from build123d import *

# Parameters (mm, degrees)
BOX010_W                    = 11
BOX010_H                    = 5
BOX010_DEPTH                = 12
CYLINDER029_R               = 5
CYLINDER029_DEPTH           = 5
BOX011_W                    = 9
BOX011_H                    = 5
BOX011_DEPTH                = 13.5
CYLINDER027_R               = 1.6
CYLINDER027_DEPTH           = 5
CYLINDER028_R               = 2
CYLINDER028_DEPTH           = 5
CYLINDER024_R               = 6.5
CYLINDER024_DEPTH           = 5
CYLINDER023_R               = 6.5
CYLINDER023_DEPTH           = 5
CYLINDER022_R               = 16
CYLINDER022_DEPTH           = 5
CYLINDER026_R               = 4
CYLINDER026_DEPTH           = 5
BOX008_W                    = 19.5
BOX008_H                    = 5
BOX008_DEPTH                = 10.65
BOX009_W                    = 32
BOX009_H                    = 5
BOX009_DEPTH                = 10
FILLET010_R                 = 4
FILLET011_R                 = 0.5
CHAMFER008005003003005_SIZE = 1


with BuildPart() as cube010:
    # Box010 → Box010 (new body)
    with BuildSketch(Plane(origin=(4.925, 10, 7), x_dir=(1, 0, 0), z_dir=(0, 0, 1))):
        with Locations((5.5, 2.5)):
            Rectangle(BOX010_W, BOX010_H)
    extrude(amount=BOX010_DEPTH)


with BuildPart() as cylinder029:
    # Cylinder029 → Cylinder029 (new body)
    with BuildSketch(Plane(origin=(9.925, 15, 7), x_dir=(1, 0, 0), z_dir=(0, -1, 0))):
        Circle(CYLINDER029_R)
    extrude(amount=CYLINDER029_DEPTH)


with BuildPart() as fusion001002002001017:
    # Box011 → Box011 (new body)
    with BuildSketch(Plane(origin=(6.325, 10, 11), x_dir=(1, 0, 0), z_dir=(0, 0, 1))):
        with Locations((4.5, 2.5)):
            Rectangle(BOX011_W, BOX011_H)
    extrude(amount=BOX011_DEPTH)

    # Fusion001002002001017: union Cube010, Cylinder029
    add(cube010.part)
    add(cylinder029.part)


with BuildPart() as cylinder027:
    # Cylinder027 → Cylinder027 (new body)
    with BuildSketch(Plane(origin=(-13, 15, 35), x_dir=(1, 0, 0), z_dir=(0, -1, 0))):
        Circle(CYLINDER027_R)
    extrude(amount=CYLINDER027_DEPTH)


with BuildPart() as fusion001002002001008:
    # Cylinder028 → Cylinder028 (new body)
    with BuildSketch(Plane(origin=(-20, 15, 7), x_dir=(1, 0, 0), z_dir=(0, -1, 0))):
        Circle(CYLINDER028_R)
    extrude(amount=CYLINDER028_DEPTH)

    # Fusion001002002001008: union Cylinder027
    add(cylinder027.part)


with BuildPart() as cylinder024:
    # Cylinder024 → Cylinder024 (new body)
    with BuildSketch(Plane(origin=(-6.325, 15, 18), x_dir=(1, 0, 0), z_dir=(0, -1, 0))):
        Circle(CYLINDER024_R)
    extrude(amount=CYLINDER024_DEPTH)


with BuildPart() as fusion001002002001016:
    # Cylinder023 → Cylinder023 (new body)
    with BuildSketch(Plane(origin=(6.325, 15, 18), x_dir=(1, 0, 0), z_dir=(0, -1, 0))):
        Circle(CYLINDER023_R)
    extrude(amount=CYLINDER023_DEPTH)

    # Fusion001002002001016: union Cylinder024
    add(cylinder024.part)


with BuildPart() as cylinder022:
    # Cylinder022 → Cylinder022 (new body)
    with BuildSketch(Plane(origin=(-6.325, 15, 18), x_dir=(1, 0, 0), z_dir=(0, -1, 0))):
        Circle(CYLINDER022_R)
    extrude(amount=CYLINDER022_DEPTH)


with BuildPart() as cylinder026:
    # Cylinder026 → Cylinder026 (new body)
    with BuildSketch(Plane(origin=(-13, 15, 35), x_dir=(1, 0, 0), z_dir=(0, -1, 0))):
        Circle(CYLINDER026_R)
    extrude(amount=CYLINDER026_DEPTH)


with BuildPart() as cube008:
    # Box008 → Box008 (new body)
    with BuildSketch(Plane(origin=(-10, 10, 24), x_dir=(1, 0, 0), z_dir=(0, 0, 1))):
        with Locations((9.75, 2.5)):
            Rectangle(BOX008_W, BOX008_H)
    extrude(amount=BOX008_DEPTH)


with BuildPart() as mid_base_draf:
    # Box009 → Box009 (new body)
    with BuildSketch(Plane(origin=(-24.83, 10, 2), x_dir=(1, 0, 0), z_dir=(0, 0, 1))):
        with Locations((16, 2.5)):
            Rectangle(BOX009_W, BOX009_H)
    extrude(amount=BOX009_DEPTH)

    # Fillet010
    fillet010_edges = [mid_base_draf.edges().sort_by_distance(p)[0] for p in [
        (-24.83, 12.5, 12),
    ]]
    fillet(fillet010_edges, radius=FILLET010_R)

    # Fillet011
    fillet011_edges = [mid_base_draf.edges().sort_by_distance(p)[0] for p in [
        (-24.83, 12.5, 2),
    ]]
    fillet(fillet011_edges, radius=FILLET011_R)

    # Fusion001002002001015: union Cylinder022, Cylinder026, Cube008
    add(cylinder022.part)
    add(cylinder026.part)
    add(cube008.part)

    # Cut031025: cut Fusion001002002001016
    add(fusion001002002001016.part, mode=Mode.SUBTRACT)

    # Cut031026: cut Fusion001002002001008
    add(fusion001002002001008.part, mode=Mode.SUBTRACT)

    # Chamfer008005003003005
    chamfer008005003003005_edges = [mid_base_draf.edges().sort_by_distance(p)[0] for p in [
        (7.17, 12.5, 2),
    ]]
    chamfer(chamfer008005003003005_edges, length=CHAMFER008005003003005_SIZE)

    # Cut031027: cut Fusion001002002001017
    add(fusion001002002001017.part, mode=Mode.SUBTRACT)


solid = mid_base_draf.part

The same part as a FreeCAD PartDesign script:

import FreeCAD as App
import Part
import Sketcher

V = App.Vector


def edges_at(feature, points):
    """Names of the edges that pass closest to the given points."""
    edges = feature.Shape.Edges
    near = lambda p: min(range(len(edges)), key=lambda i: edges[i].distToShape(Part.Vertex(*p))[0])
    return sorted({f"Edge{near(p) + 1}" for p in points})


def add_polygon(sketch, points):
    """Adds a closed chain of lines whose ends are joined by coincident constraints."""
    first, n = sketch.GeometryCount, len(points)
    for a, b in zip(points, points[1:] + points[:1]):
        sketch.addGeometry(Part.LineSegment(App.Vector(*a, 0), App.Vector(*b, 0)), False)
    for i in range(n):
        sketch.addConstraint(Sketcher.Constraint("Coincident", first + i, 2, first + (i + 1) % n, 1))

doc = App.newDocument("Part")
body = doc.addObject("PartDesign::Body", "Body")

# Sketch on XY plane
sketch1 = body.newObject("Sketcher::SketchObject", "Sketch")
sketch1.AttachmentSupport = (doc.getObject("XY_Plane"), [""])
sketch1.MapMode = "FlatFace"
sketch1.AttachmentOffset = App.Placement(V(0, 0, 7), App.Rotation())
add_polygon(sketch1, [(5, 15), (5, 10), (16, 10), (16, 15)])  # lines 0-3
sketch1.addConstraint([
    Sketcher.Constraint("Vertical", 0),
    Sketcher.Constraint("Horizontal", 1),
    Sketcher.Constraint("Vertical", 2),
    Sketcher.Constraint("Horizontal", 3),
    Sketcher.Constraint("DistanceX", 1, 1, 1, 2, 11.0),
    Sketcher.Constraint("DistanceY", 0, 2, 0, 1, 5.0),
    Sketcher.Constraint("DistanceY", -1, 1, 0, 2, 10.0),
    Sketcher.Constraint("DistanceX", -1, 1, 0, 2, 4.925),
])
pad1 = body.newObject("PartDesign::Pad", "Pad")
pad1.Profile = sketch1
pad1.Length = 12
body2 = doc.addObject("PartDesign::Body", "Body001")

# Sketch on XZ plane
sketch2 = body2.newObject("Sketcher::SketchObject", "Sketch001")
sketch2.AttachmentSupport = (doc.getObject("XZ_Plane001"), [""])
sketch2.MapMode = "FlatFace"
sketch2.AttachmentOffset = App.Placement(V(0, 0, -15), App.Rotation())
sketch2.addGeometry(Part.Circle(V(10, 7, 0), V(0, 0, 1), 5), False)
sketch2.addConstraint([
    Sketcher.Constraint("Diameter", 0, 10.0),
    Sketcher.Constraint("DistanceY", -1, 1, 0, 3, 7.0),
    Sketcher.Constraint("DistanceX", -1, 1, 0, 3, 9.925),
])
pad2 = body2.newObject("PartDesign::Pad", "Pad001")
pad2.Profile = sketch2
pad2.Length = 5
body3 = doc.addObject("PartDesign::Body", "Body002")

# Sketch on XY plane
sketch3 = body3.newObject("Sketcher::SketchObject", "Sketch002")
sketch3.AttachmentSupport = (doc.getObject("XY_Plane002"), [""])
sketch3.MapMode = "FlatFace"
sketch3.AttachmentOffset = App.Placement(V(0, 0, 11), App.Rotation())
add_polygon(sketch3, [(6, 15), (6, 10), (15, 10), (15, 15)])  # lines 0-3
sketch3.addConstraint([
    Sketcher.Constraint("Vertical", 0),
    Sketcher.Constraint("Horizontal", 1),
    Sketcher.Constraint("Vertical", 2),
    Sketcher.Constraint("Horizontal", 3),
    Sketcher.Constraint("DistanceX", 1, 1, 1, 2, 9.0),
    Sketcher.Constraint("DistanceY", 0, 2, 0, 1, 5.0),
    Sketcher.Constraint("DistanceY", -1, 1, 0, 2, 10.0),
    Sketcher.Constraint("DistanceX", -1, 1, 0, 2, 6.325),
])
pad3 = body3.newObject("PartDesign::Pad", "Pad002")
pad3.Profile = sketch3
pad3.Length = 13.5
doc.recompute()

boolean = body3.newObject("PartDesign::Boolean", "Boolean")
boolean.Type = "Fuse"
boolean.addObjects([body])
doc.recompute()

boolean2 = body3.newObject("PartDesign::Boolean", "Boolean001")
boolean2.Type = "Fuse"
boolean2.addObjects([body2])
body4 = doc.addObject("PartDesign::Body", "Body003")

# Sketch on XZ plane
sketch4 = body4.newObject("Sketcher::SketchObject", "Sketch003")
sketch4.AttachmentSupport = (doc.getObject("XZ_Plane003"), [""])
sketch4.MapMode = "FlatFace"
sketch4.AttachmentOffset = App.Placement(V(0, 0, -15), App.Rotation())
sketch4.addGeometry(Part.Circle(V(-13, 35, 0), V(0, 0, 1), 1.6), False)
sketch4.addConstraint([
    Sketcher.Constraint("Diameter", 0, 3.2),
    Sketcher.Constraint("DistanceX", 0, 3, -1, 1, 13.0),
    Sketcher.Constraint("DistanceY", -1, 1, 0, 3, 35.0),
])
pad4 = body4.newObject("PartDesign::Pad", "Pad003")
pad4.Profile = sketch4
pad4.Length = 5
body5 = doc.addObject("PartDesign::Body", "Body004")
body5.AllowCompound = True

# Sketch on XZ plane
sketch5 = body5.newObject("Sketcher::SketchObject", "Sketch004")
sketch5.AttachmentSupport = (doc.getObject("XZ_Plane004"), [""])
sketch5.MapMode = "FlatFace"
sketch5.AttachmentOffset = App.Placement(V(0, 0, -15), App.Rotation())
sketch5.addGeometry(Part.Circle(V(-20, 7, 0), V(0, 0, 1), 2), False)
sketch5.addConstraint([
    Sketcher.Constraint("Diameter", 0, 4.0),
    Sketcher.Constraint("DistanceX", 0, 3, -1, 1, 20.0),
    Sketcher.Constraint("DistanceY", -1, 1, 0, 3, 7.0),
])
pad5 = body5.newObject("PartDesign::Pad", "Pad004")
pad5.Profile = sketch5
pad5.Length = 5
doc.recompute()

boolean3 = body5.newObject("PartDesign::Boolean", "Boolean002")
boolean3.Type = "Fuse"
boolean3.addObjects([body4])
body6 = doc.addObject("PartDesign::Body", "Body005")

# Sketch on XZ plane
sketch6 = body6.newObject("Sketcher::SketchObject", "Sketch005")
sketch6.AttachmentSupport = (doc.getObject("XZ_Plane005"), [""])
sketch6.MapMode = "FlatFace"
sketch6.AttachmentOffset = App.Placement(V(0, 0, -15), App.Rotation())
sketch6.addGeometry(Part.Circle(V(-6, 18, 0), V(0, 0, 1), 6), False)
sketch6.addConstraint([
    Sketcher.Constraint("Diameter", 0, 13.0),
    Sketcher.Constraint("DistanceY", -1, 1, 0, 3, 18.0),
    Sketcher.Constraint("DistanceX", 0, 3, -1, 1, 6.325),
])
pad6 = body6.newObject("PartDesign::Pad", "Pad005")
pad6.Profile = sketch6
pad6.Length = 5
body7 = doc.addObject("PartDesign::Body", "Body006")

# Sketch on XZ plane
sketch7 = body7.newObject("Sketcher::SketchObject", "Sketch006")
sketch7.AttachmentSupport = (doc.getObject("XZ_Plane006"), [""])
sketch7.MapMode = "FlatFace"
sketch7.AttachmentOffset = App.Placement(V(0, 0, -15), App.Rotation())
sketch7.addGeometry(Part.Circle(V(6, 18, 0), V(0, 0, 1), 6), False)
sketch7.addConstraint([
    Sketcher.Constraint("Diameter", 0, 13.0),
    Sketcher.Constraint("DistanceY", -1, 1, 0, 3, 18.0),
    Sketcher.Constraint("DistanceX", -1, 1, 0, 3, 6.325),
])
pad7 = body7.newObject("PartDesign::Pad", "Pad006")
pad7.Profile = sketch7
pad7.Length = 5
doc.recompute()

boolean4 = body7.newObject("PartDesign::Boolean", "Boolean003")
boolean4.Type = "Fuse"
boolean4.addObjects([body6])
body8 = doc.addObject("PartDesign::Body", "Body007")

# Sketch on XZ plane
sketch8 = body8.newObject("Sketcher::SketchObject", "Sketch007")
sketch8.AttachmentSupport = (doc.getObject("XZ_Plane007"), [""])
sketch8.MapMode = "FlatFace"
sketch8.AttachmentOffset = App.Placement(V(0, 0, -15), App.Rotation())
sketch8.addGeometry(Part.Circle(V(-6, 18, 0), V(0, 0, 1), 16), False)
sketch8.addConstraint([
    Sketcher.Constraint("Diameter", 0, 32.0),
    Sketcher.Constraint("DistanceY", -1, 1, 0, 3, 18.0),
    Sketcher.Constraint("DistanceX", 0, 3, -1, 1, 6.325),
])
pad8 = body8.newObject("PartDesign::Pad", "Pad007")
pad8.Profile = sketch8
pad8.Length = 5
body9 = doc.addObject("PartDesign::Body", "Body008")

# Sketch on XZ plane
sketch9 = body9.newObject("Sketcher::SketchObject", "Sketch008")
sketch9.AttachmentSupport = (doc.getObject("XZ_Plane008"), [""])
sketch9.MapMode = "FlatFace"
sketch9.AttachmentOffset = App.Placement(V(0, 0, -15), App.Rotation())
sketch9.addGeometry(Part.Circle(V(-13, 35, 0), V(0, 0, 1), 4), False)
sketch9.addConstraint([
    Sketcher.Constraint("Diameter", 0, 8.0),
    Sketcher.Constraint("DistanceX", 0, 3, -1, 1, 13.0),
    Sketcher.Constraint("DistanceY", -1, 1, 0, 3, 35.0),
])
pad9 = body9.newObject("PartDesign::Pad", "Pad008")
pad9.Profile = sketch9
pad9.Length = 5
body10 = doc.addObject("PartDesign::Body", "Body009")

# Sketch on XY plane
sketch10 = body10.newObject("Sketcher::SketchObject", "Sketch009")
sketch10.AttachmentSupport = (doc.getObject("XY_Plane009"), [""])
sketch10.MapMode = "FlatFace"
sketch10.AttachmentOffset = App.Placement(V(0, 0, 24), App.Rotation())
add_polygon(sketch10, [(-10, 15), (-10, 10), (10, 10), (10, 15)])  # lines 0-3
sketch10.addConstraint([
    Sketcher.Constraint("Vertical", 0),
    Sketcher.Constraint("Horizontal", 1),
    Sketcher.Constraint("Vertical", 2),
    Sketcher.Constraint("Horizontal", 3),
    Sketcher.Constraint("DistanceY", 0, 2, 0, 1, 5.0),
    Sketcher.Constraint("DistanceX", 1, 1, 1, 2, 19.5),
    Sketcher.Constraint("DistanceX", 0, 2, -1, 1, 10.0),
    Sketcher.Constraint("DistanceY", -1, 1, 0, 2, 10.0),
])
pad10 = body10.newObject("PartDesign::Pad", "Pad009")
pad10.Profile = sketch10
pad10.Length = 10.65
body11 = doc.addObject("PartDesign::Body", "Body010")

# Sketch on XY plane
sketch11 = body11.newObject("Sketcher::SketchObject", "Sketch010")
sketch11.AttachmentSupport = (doc.getObject("XY_Plane010"), [""])
sketch11.MapMode = "FlatFace"
sketch11.AttachmentOffset = App.Placement(V(0, 0, 2), App.Rotation())
add_polygon(sketch11, [(-25, 15), (-25, 10), (7, 10), (7, 15)])  # lines 0-3
sketch11.addConstraint([
    Sketcher.Constraint("Vertical", 0),
    Sketcher.Constraint("Horizontal", 1),
    Sketcher.Constraint("Vertical", 2),
    Sketcher.Constraint("Horizontal", 3),
    Sketcher.Constraint("DistanceX", 1, 1, 1, 2, 32.0),
    Sketcher.Constraint("DistanceY", 0, 2, 0, 1, 5.0),
    Sketcher.Constraint("DistanceY", -1, 1, 0, 2, 10.0),
    Sketcher.Constraint("DistanceX", 0, 2, -1, 1, 24.83),
])
pad11 = body11.newObject("PartDesign::Pad", "Pad010")
pad11.Profile = sketch11
pad11.Length = 10
doc.recompute()

fillet = body11.newObject("PartDesign::Fillet", "Fillet")
fillet.Base = (pad11, edges_at(pad11, [(-24.83, 12.5, 12)]))
fillet.Radius = 4
doc.recompute()

fillet2 = body11.newObject("PartDesign::Fillet", "Fillet001")
fillet2.Base = (fillet, edges_at(fillet, [(-24.83, 12.5, 2)]))
fillet2.Radius = 0.5
doc.recompute()

boolean5 = body11.newObject("PartDesign::Boolean", "Boolean004")
boolean5.Type = "Fuse"
boolean5.addObjects([body8])
doc.recompute()

boolean6 = body11.newObject("PartDesign::Boolean", "Boolean005")
boolean6.Type = "Fuse"
boolean6.addObjects([body9])
doc.recompute()

boolean7 = body11.newObject("PartDesign::Boolean", "Boolean006")
boolean7.Type = "Fuse"
boolean7.addObjects([body10])
doc.recompute()

boolean8 = body11.newObject("PartDesign::Boolean", "Boolean007")
boolean8.Type = "Cut"
boolean8.addObjects([body7])
doc.recompute()

boolean9 = body11.newObject("PartDesign::Boolean", "Boolean008")
boolean9.Type = "Cut"
boolean9.addObjects([body5])
doc.recompute()

chamfer = body11.newObject("PartDesign::Chamfer", "Chamfer")
chamfer.Base = (boolean9, edges_at(boolean9, [(7.17, 12.5, 2)]))
chamfer.Size = 1
doc.recompute()

boolean10 = body11.newObject("PartDesign::Boolean", "Boolean009")
boolean10.Type = "Cut"
boolean10.addObjects([body3])

doc.recompute()
